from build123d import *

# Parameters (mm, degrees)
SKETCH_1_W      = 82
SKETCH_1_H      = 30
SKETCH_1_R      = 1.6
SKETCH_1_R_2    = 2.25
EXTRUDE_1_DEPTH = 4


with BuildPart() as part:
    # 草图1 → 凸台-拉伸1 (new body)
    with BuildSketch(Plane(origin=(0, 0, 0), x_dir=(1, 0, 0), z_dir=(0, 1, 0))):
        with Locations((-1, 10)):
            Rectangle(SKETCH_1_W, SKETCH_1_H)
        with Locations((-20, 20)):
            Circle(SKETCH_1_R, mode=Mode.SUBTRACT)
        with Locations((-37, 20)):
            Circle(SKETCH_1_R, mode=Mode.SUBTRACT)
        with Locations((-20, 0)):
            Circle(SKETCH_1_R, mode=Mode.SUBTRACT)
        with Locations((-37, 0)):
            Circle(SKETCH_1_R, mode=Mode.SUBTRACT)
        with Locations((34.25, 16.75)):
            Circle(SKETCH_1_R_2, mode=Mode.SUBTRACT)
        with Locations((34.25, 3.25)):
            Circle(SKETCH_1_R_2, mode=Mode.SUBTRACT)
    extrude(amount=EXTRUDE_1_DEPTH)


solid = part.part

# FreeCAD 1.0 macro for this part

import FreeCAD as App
import Part
import Sketcher

V = App.Vector
Q = App.Units.Quantity

doc = App.newDocument("Part")
body = doc.addObject("PartDesign::Body", "Body")

sketch1 = doc.addObject("Sketcher::SketchObject", "Sketch")
body.addObject(sketch1)
sketch1.AttachmentSupport = (doc.XZ_Plane, [""])
sketch1.MapMode = "FlatFace"
sketch1.addGeometry([
    Part.LineSegment(V(-42, -25, 0), V(-42, 5, 0)),
    Part.LineSegment(V(-42, 5, 0), V(40, 5, 0)),
    Part.LineSegment(V(40, 5, 0), V(40, -25, 0)),
    Part.LineSegment(V(40, -25, 0), V(-42, -25, 0)),
    Part.Circle(V(-37, 0, 0), V(0, 0, 1), 1.6),
    Part.Circle(V(-20, 0, 0), V(0, 0, 1), 1.6),
    Part.Circle(V(34.2, -3.2, 0), V(0, 0, 1), 2.2),
    Part.Circle(V(-37, -20, 0), V(0, 0, 1), 1.6),
    Part.Circle(V(-20, -20, 0), V(0, 0, 1), 1.6),
    Part.Circle(V(34.2, -16.8, 0), V(0, 0, 1), 2.2),
], False)
sketch1.addConstraint([
    Sketcher.Constraint("Coincident", 0, 2, 1, 1),
    Sketcher.Constraint("Coincident", 1, 2, 2, 1),
    Sketcher.Constraint("Coincident", 2, 2, 3, 1),
    Sketcher.Constraint("Coincident", 3, 2, 0, 1),
    Sketcher.Constraint("Vertical", 0),
    Sketcher.Constraint("Horizontal", 1),
    Sketcher.Constraint("Vertical", 2),
    Sketcher.Constraint("Horizontal", 3),
    Sketcher.Constraint("Equal", 4, 5),
    Sketcher.Constraint("Equal", 5, 7),
    Sketcher.Constraint("Equal", 7, 8),
    Sketcher.Constraint("Equal", 6, 9),
    Sketcher.Constraint("PointOnObject", 4, 3, -1),
    Sketcher.Constraint("PointOnObject", 5, 3, -1),
    Sketcher.Constraint("Horizontal", 7, 3, 8, 3),
    Sketcher.Constraint("Vertical", 4, 3, 7, 3),
    Sketcher.Constraint("Vertical", 5, 3, 8, 3),
    Sketcher.Constraint("Vertical", 6, 3, 9, 3),
    Sketcher.Constraint("Diameter", 4, Q("3.2 mm")),
    Sketcher.Constraint("Diameter", 6, Q("4.5 mm")),
    Sketcher.Constraint("DistanceX", 1, 1, 1, 2, Q("82 mm")),
    Sketcher.Constraint("DistanceY", 0, 1, 0, 2, Q("30 mm")),
    Sketcher.Constraint("DistanceX", 4, 3, -1, 1, Q("37 mm")),
    Sketcher.Constraint("DistanceX", 5, 3, -1, 1, Q("20 mm")),
    Sketcher.Constraint("DistanceY", 7, 3, -1, 1, Q("20 mm")),
    Sketcher.Constraint("DistanceX", 0, 2, -1, 1, Q("42 mm")),
    Sketcher.Constraint("DistanceY", -1, 1, 0, 2, Q("5 mm")),
    Sketcher.Constraint("DistanceY", 9, 3, 6, 3, Q("13.5 mm")),
    Sketcher.Constraint("DistanceX", -1, 1, 6, 3, Q("34.25 mm")),
    Sketcher.Constraint("DistanceY", 6, 3, -1, 1, Q("3.25 mm")),
])
pad1 = doc.addObject("PartDesign::Pad", "Pad")
body.addObject(pad1)
pad1.Profile = sketch1
pad1.Length = 4
pad1.Reversed = True

doc.recompute()
